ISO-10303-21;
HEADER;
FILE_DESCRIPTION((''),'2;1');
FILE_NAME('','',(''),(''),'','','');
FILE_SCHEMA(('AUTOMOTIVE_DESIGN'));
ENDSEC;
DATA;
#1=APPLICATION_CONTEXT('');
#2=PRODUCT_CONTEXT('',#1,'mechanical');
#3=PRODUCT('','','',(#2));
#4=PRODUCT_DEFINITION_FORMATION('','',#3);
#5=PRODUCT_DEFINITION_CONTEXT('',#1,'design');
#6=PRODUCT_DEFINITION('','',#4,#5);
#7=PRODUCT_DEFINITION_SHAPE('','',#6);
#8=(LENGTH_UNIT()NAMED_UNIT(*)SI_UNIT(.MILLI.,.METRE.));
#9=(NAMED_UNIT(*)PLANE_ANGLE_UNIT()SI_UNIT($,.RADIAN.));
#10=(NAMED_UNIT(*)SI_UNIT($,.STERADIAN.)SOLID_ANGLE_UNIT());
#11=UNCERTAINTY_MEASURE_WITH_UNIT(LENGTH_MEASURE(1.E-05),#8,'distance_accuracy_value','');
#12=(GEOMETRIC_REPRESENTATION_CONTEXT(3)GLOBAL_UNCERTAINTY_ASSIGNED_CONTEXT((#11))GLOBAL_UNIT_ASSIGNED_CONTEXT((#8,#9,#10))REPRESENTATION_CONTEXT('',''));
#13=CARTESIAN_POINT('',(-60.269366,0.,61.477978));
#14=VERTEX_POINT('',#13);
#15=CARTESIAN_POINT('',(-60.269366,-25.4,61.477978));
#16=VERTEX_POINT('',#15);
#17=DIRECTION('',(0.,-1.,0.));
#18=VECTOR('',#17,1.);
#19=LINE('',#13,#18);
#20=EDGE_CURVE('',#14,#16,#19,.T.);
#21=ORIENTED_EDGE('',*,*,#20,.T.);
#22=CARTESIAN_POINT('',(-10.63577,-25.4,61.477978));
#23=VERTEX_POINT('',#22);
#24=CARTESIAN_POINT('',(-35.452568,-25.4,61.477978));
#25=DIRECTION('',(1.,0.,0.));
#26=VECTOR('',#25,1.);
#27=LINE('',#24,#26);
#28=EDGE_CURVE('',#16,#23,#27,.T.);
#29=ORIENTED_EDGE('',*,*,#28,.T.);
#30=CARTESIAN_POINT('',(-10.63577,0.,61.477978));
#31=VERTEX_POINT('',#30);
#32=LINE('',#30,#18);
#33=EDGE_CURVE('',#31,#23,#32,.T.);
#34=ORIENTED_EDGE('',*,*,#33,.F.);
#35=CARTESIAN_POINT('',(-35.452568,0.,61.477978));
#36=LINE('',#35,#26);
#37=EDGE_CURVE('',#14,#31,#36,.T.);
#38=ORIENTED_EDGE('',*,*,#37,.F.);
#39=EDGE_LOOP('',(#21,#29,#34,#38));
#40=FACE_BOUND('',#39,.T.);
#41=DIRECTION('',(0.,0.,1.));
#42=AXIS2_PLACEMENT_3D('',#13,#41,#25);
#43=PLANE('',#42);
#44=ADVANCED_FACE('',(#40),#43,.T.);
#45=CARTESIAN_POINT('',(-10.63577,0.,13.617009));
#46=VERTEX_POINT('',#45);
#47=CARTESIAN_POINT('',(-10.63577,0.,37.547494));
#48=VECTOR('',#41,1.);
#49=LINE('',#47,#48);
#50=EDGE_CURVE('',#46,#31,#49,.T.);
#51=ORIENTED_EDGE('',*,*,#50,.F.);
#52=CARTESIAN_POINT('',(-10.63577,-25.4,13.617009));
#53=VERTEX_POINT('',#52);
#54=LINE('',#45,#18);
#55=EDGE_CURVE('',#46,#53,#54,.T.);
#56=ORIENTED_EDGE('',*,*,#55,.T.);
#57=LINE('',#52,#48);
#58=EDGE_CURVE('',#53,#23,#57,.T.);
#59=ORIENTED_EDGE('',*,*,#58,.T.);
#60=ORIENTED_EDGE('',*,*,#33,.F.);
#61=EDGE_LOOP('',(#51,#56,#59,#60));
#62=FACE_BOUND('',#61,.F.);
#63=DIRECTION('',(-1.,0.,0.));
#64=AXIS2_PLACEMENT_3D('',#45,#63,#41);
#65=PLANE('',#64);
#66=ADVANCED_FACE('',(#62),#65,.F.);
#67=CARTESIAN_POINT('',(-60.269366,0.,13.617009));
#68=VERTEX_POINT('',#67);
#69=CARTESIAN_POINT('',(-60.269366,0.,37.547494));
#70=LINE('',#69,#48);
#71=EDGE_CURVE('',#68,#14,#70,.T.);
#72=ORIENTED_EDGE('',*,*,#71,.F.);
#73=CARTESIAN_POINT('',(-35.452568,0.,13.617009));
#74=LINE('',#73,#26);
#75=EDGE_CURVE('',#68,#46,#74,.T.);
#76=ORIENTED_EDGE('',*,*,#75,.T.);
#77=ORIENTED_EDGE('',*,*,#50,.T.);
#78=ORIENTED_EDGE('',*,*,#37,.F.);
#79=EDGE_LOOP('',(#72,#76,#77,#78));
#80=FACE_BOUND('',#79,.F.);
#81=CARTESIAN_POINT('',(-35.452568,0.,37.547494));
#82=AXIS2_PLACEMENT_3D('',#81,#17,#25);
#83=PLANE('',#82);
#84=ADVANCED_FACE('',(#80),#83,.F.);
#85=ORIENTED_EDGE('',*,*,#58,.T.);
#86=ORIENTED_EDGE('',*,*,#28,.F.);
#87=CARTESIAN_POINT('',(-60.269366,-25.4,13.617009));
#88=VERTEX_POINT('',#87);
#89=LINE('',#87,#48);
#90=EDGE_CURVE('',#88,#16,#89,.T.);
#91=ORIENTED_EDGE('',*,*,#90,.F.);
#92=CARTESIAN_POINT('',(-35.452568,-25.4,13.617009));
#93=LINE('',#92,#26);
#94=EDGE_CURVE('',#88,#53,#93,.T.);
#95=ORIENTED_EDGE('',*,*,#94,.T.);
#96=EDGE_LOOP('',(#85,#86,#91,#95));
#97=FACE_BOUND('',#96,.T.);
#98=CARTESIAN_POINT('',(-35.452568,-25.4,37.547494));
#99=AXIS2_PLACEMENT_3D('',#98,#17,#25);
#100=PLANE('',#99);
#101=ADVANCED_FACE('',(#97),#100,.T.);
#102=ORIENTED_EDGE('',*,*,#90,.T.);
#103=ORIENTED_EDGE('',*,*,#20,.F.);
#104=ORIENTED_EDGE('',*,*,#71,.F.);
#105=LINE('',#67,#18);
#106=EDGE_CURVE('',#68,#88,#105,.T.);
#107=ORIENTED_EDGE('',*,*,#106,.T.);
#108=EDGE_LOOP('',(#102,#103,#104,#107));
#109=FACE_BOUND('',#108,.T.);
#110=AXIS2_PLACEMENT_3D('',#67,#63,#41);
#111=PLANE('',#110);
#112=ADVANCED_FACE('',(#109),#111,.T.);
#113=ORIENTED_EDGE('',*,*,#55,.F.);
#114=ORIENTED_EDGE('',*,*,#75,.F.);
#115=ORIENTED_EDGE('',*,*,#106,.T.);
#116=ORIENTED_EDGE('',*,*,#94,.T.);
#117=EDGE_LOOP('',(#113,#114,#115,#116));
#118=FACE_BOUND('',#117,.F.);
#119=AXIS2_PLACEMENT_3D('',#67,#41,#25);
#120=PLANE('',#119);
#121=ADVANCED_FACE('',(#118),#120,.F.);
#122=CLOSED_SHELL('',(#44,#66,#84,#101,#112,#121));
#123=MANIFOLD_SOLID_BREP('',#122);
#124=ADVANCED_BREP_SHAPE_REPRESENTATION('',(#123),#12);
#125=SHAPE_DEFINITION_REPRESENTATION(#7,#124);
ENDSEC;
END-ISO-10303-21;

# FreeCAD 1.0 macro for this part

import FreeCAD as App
import Part
import Sketcher
Q = App.Units.Quantity

doc = App.newDocument("Part")
body = doc.addObject("PartDesign::Body", "Body")

sketch1 = body.newObject("Sketcher::SketchObject", "Sketch")
sketch1.AttachmentSupport = (doc.getObject("XZ_Plane"), [""])
sketch1.MapMode = "FlatFace"
sketch1.addGeometry(Part.LineSegment(App.Vector(-60, 61, 0), App.Vector(-60, 14, 0)), False)
sketch1.addGeometry(Part.LineSegment(App.Vector(-60, 14, 0), App.Vector(-11, 14, 0)), False)
sketch1.addGeometry(Part.LineSegment(App.Vector(-11, 14, 0), App.Vector(-11, 61, 0)), False)
sketch1.addGeometry(Part.LineSegment(App.Vector(-11, 61, 0), App.Vector(-60, 61, 0)), False)
sketch1.addConstraint(Sketcher.Constraint("Coincident", 0, 2, 1, 1))
sketch1.addConstraint(Sketcher.Constraint("Coincident", 1, 2, 2, 1))
sketch1.addConstraint(Sketcher.Constraint("Coincident", 2, 2, 3, 1))
sketch1.addConstraint(Sketcher.Constraint("Coincident", 3, 2, 0, 1))
sketch1.addConstraint(Sketcher.Constraint("Vertical", 0))
sketch1.addConstraint(Sketcher.Constraint("Horizontal", 1))
sketch1.addConstraint(Sketcher.Constraint("Vertical", 2))
sketch1.addConstraint(Sketcher.Constraint("Horizontal", 3))
sketch1.addConstraint(Sketcher.Constraint("DistanceY", 0, 2, 0, 1, 47.860969))
sketch1.addConstraint(Sketcher.Constraint("DistanceX", 1, 1, 1, 2, 49.633597))
sketch1.addConstraint(Sketcher.Constraint("DistanceY", -1, 1, 0, 2, 13.617009))
sketch1.addConstraint(Sketcher.Constraint("DistanceX", 1, 2, -1, 1, 10.63577))
pad1 = body.newObject("PartDesign::Pad", "Pad")
pad1.Profile = sketch1
pad1.Length = Q("1 in")

sketch2 = body.newObject("Sketcher::SketchObject", "Sketch001")
sketch2.AttachmentSupport = (doc.getObject("XZ_Plane"), [""])
sketch2.MapMode = "FlatFace"
sketch2.AttachmentOffset = App.Placement(App.Vector(0, 0, 1 * 25.4), App.Rotation())
sketch2.addGeometry(Part.LineSegment(App.Vector(-53, 52, 0), App.Vector(-53, 30, 0)), False)
sketch2.addGeometry(Part.LineSegment(App.Vector(-53, 30, 0), App.Vector(-26, 30, 0)), False)
sketch2.addGeometry(Part.LineSegment(App.Vector(-26, 30, 0), App.Vector(-26, 52, 0)), False)
sketch2.addGeometry(Part.LineSegment(App.Vector(-26, 52, 0), App.Vector(-53, 52, 0)), False)
sketch2.addConstraint(Sketcher.Constraint("Coincident", 0, 2, 1, 1))
sketch2.addConstraint(Sketcher.Constraint("Coincident", 1, 2, 2, 1))
sketch2.addConstraint(Sketcher.Constraint("Coincident", 2, 2, 3, 1))
sketch2.addConstraint(Sketcher.Constraint("Coincident", 3, 2, 0, 1))
sketch2.addConstraint(Sketcher.Constraint("Vertical", 0))
sketch2.addConstraint(Sketcher.Constraint("Horizontal", 1))
sketch2.addConstraint(Sketcher.Constraint("Vertical", 2))
sketch2.addConstraint(Sketcher.Constraint("Horizontal", 3))
sketch2.addConstraint(Sketcher.Constraint("DistanceX", 1, 1, 1, 2, 27.072871))
sketch2.addConstraint(Sketcher.Constraint("DistanceY", 0, 2, 0, 1, 22.077278))
sketch2.addConstraint(Sketcher.Constraint("DistanceX", 0, 2, -1, 1, 52.695408))
sketch2.addConstraint(Sketcher.Constraint("DistanceY", -1, 1, 0, 2, 29.570665))
pad2 = body.newObject("PartDesign::Pad", "Pad001")
pad2.Profile = sketch2
pad2.Length = Q("1 in")
pad2.Reversed = True

sketch3 = body.newObject("Sketcher::SketchObject", "Sketch002")
sketch3.AttachmentSupport = (doc.getObject("XZ_Plane"), [""])
sketch3.MapMode = "FlatFace"
sketch3.AttachmentOffset = App.Placement(App.Vector(0, 0, 1 * 25.4), App.Rotation())
sketch3.addGeometry(Part.LineSegment(App.Vector(-60, 61, 0), App.Vector(-60, 14, 0)), False)
sketch3.addGeometry(Part.LineSegment(App.Vector(-60, 14, 0), App.Vector(-11, 14, 0)), False)
sketch3.addGeometry(Part.LineSegment(App.Vector(-11, 14, 0), App.Vector(-11, 61, 0)), False)
sketch3.addGeometry(Part.LineSegment(App.Vector(-11, 61, 0), App.Vector(-60, 61, 0)), False)
sketch3.addConstraint(Sketcher.Constraint("Coincident", 0, 2, 1, 1))
sketch3.addConstraint(Sketcher.Constraint("Coincident", 1, 2, 2, 1))
sketch3.addConstraint(Sketcher.Constraint("Coincident", 2, 2, 3, 1))
sketch3.addConstraint(Sketcher.Constraint("Coincident", 3, 2, 0, 1))
sketch3.addConstraint(Sketcher.Constraint("Vertical", 0))
sketch3.addConstraint(Sketcher.Constraint("Horizontal", 1))
sketch3.addConstraint(Sketcher.Constraint("Vertical", 2))
sketch3.addConstraint(Sketcher.Constraint("Horizontal", 3))
sketch3.addConstraint(Sketcher.Constraint("DistanceX", 1, 1, 1, 2, 49.633598))
sketch3.addConstraint(Sketcher.Constraint("DistanceY", 0, 2, 0, 1, 47.860968))
sketch3.addConstraint(Sketcher.Constraint("DistanceY", -1, 1, 0, 2, 13.617009))
sketch3.addConstraint(Sketcher.Constraint("DistanceX", 1, 2, -1, 1, 10.635769))
pocket1 = body.newObject("PartDesign::Pocket", "Pocket")
pocket1.Profile = sketch3
pocket1.Length = Q("1 in")
pocket1.Reversed = True

doc.recompute()
